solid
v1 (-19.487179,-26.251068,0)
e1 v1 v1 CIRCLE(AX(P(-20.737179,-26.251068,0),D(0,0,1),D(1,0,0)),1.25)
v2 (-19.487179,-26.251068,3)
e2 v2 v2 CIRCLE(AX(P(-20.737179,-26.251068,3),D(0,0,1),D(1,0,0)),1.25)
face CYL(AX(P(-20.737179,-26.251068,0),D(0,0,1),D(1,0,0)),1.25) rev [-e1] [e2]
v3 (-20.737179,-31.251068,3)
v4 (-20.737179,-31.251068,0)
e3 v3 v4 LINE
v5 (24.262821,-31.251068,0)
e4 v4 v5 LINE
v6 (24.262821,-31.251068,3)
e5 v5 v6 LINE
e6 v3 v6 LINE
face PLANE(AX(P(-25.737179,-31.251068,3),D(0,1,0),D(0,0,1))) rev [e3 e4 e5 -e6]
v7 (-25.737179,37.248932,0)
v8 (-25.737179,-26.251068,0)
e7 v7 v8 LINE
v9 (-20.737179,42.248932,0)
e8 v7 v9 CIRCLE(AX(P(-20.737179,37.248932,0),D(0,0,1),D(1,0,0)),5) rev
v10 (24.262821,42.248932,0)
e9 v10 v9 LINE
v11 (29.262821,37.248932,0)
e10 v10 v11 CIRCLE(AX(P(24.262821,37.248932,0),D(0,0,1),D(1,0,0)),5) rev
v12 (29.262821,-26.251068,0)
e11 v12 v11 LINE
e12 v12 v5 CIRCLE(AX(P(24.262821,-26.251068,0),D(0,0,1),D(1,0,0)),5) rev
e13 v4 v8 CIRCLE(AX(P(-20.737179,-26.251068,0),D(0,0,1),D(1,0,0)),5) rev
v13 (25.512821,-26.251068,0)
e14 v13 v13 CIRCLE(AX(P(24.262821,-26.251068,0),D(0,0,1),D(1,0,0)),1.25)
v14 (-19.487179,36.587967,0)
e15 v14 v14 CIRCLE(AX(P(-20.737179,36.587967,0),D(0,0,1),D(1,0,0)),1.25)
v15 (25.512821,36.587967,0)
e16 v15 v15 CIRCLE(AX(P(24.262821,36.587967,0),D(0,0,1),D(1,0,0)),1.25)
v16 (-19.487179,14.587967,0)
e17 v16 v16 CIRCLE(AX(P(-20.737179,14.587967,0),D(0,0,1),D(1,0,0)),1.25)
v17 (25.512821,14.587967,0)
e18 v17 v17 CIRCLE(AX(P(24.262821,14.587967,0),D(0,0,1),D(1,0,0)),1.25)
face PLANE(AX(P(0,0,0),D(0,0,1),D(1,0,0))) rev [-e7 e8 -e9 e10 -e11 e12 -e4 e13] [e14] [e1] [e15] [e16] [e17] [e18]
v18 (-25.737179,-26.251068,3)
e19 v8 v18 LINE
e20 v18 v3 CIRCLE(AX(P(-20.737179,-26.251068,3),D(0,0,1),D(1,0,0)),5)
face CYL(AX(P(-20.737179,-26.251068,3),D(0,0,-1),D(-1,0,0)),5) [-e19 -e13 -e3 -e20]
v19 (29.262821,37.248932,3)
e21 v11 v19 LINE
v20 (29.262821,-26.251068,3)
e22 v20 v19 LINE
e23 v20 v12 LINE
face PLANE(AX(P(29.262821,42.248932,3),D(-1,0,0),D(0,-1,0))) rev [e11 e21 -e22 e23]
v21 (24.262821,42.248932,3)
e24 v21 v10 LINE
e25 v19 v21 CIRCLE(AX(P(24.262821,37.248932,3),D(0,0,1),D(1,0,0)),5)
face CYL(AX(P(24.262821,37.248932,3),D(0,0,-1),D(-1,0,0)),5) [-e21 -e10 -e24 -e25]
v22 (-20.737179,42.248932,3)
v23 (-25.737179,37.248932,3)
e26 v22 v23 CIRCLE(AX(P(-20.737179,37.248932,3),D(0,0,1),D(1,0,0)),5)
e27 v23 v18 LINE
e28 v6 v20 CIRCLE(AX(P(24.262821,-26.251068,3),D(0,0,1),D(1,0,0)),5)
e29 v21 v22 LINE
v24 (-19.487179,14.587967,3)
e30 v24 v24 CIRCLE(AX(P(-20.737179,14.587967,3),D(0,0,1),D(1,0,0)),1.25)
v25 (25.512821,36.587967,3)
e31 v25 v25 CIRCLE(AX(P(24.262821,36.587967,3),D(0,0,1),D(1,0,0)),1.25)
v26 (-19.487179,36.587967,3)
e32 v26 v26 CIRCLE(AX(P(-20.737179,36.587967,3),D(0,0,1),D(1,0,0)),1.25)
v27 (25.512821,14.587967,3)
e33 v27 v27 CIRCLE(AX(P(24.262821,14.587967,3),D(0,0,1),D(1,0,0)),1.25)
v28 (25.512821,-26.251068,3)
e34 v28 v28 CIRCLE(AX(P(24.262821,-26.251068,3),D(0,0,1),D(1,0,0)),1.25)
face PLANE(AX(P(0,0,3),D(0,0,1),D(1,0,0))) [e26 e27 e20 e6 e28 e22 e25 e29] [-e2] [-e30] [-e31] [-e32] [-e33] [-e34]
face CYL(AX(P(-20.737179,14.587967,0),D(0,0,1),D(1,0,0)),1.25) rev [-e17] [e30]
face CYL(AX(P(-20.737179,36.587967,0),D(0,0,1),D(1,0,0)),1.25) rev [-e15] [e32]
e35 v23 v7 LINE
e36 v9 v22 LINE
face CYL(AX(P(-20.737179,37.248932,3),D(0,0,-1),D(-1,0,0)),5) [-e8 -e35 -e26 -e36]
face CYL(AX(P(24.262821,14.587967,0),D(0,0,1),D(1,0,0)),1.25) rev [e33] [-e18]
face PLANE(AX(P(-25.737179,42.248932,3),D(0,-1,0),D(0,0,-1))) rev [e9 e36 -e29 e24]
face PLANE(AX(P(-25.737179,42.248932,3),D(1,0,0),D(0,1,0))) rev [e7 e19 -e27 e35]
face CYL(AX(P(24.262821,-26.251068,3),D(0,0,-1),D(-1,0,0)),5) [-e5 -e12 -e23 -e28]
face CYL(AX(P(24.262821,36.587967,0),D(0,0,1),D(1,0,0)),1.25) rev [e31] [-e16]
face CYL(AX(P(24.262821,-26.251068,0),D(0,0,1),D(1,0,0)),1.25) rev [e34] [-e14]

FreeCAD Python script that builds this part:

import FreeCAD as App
import Part
import Sketcher
from FreeCAD import Vector
Q = App.Units.Quantity


def edges_at(feature, points):
    """Names of the edges that pass closest to the given points."""
    edges = feature.Shape.Edges
    near = lambda p: min(range(len(edges)), key=lambda i: edges[i].distToShape(Part.Vertex(*p))[0])
    return sorted({f"Edge{near(p) + 1}" for p in points})


def add_polygon(sketch, points):
    """Adds a closed chain of lines whose ends are joined by coincident constraints."""
    first, n = sketch.GeometryCount, len(points)
    for a, b in zip(points, points[1:] + points[:1]):
        sketch.addGeometry(Part.LineSegment(App.Vector(*a, 0), App.Vector(*b, 0)), False)
    for i in range(n):
        sketch.addConstraint(Sketcher.Constraint("Coincident", first + i, 2, first + (i + 1) % n, 1))

doc = App.newDocument("Part")
body = doc.addObject("PartDesign::Body", "Body")

# Sketch on XY plane
sketch1 = doc.addObject("Sketcher::SketchObject", "Sketch")
body.addObject(sketch1)
sketch1.AttachmentSupport = (doc.XY_Plane, [""])
sketch1.MapMode = "FlatFace"
add_polygon(sketch1, [(-26, 42), (-26, -31), (29, -31), (29, 42)])  # lines 0-3
sketch1.addConstraint([
    Sketcher.Constraint("Vertical", 0),
    Sketcher.Constraint("Horizontal", 1),
    Sketcher.Constraint("Vertical", 2),
    Sketcher.Constraint("Horizontal", 3),
    Sketcher.Constraint("DistanceX", 1, 1, 1, 2, Q("55 mm")),
    Sketcher.Constraint("DistanceY", 0, 2, 0, 1, Q("73.5 mm")),
    Sketcher.Constraint("DistanceX", 0, 2, -1, 1, Q("25.737179 mm")),
    Sketcher.Constraint("DistanceY", 0, 2, -1, 1, Q("31.251068 mm")),
])
pad1 = doc.addObject("PartDesign::Pad", "Pad")
body.addObject(pad1)
pad1.Profile = sketch1
pad1.Length = 3

# Sketch on XY plane
sketch2 = doc.addObject("Sketcher::SketchObject", "Sketch001")
body.addObject(sketch2)
sketch2.AttachmentSupport = (doc.XY_Plane, [""])
sketch2.MapMode = "FlatFace"
sketch2.AttachmentOffset = App.Placement(Vector(0, 0, 3), App.Rotation())
sketch2.addGeometry([
    Part.Circle(Vector(-20.7, 36.6, 0), Vector(0, 0, 1), 1.2),  # 0
    Part.Circle(Vector(24.3, 36.6, 0), Vector(0, 0, 1), 1.2),  # 1
    Part.Circle(Vector(-20.7, 14.6, 0), Vector(0, 0, 1), 1.2),  # 2
    Part.Circle(Vector(24.3, 14.6, 0), Vector(0, 0, 1), 1.2),  # 3
    Part.Circle(Vector(-20.7, -26.3, 0), Vector(0, 0, 1), 1.2),  # 4
    Part.Circle(Vector(24.3, -26.3, 0), Vector(0, 0, 1), 1.2),  # 5
], False)
sketch2.addConstraint([
    Sketcher.Constraint("Equal", 0, 1),
    Sketcher.Constraint("Equal", 1, 2),
    Sketcher.Constraint("Equal", 2, 3),
    Sketcher.Constraint("Equal", 3, 4),
    Sketcher.Constraint("Equal", 4, 5),
    Sketcher.Constraint("Horizontal", 0, 3, 1, 3),
    Sketcher.Constraint("Horizontal", 2, 3, 3, 3),
    Sketcher.Constraint("Horizontal", 4, 3, 5, 3),
    Sketcher.Constraint("Vertical", 0, 3, 2, 3),
    Sketcher.Constraint("Vertical", 1, 3, 3, 3),
    Sketcher.Constraint("Vertical", 2, 3, 4, 3),
    Sketcher.Constraint("Vertical", 3, 3, 5, 3),
    Sketcher.Constraint("Diameter", 0, Q("2.5 mm")),
    Sketcher.Constraint("DistanceX", 0, 3, 1, 3, Q("45 mm")),
    Sketcher.Constraint("DistanceY", 2, 3, 0, 3, Q("22 mm")),
    Sketcher.Constraint("DistanceX", 0, 3, -1, 1, Q("20.737179 mm")),
    Sketcher.Constraint("DistanceY", 4, 3, -1, 1, Q("26.251068 mm")),
    Sketcher.Constraint("DistanceY", -1, 1, 0, 3, Q("36.587967 mm")),
])
pocket1 = doc.addObject("PartDesign::Pocket", "Pocket")
body.addObject(pocket1)
pocket1.Profile = sketch2
pocket1.Length = 3
doc.recompute()

fillet = doc.addObject("PartDesign::Fillet", "Fillet")
body.addObject(fillet)
fillet.Base = (pocket1, edges_at(pocket1, [
    (-25.737, 42.249, 1.5),
    (29.263, 42.249, 1.5),
    (29.263, -31.251, 1.5),
    (-25.737, -31.251, 1.5),
]))
fillet.Radius = 5

doc.recompute()
